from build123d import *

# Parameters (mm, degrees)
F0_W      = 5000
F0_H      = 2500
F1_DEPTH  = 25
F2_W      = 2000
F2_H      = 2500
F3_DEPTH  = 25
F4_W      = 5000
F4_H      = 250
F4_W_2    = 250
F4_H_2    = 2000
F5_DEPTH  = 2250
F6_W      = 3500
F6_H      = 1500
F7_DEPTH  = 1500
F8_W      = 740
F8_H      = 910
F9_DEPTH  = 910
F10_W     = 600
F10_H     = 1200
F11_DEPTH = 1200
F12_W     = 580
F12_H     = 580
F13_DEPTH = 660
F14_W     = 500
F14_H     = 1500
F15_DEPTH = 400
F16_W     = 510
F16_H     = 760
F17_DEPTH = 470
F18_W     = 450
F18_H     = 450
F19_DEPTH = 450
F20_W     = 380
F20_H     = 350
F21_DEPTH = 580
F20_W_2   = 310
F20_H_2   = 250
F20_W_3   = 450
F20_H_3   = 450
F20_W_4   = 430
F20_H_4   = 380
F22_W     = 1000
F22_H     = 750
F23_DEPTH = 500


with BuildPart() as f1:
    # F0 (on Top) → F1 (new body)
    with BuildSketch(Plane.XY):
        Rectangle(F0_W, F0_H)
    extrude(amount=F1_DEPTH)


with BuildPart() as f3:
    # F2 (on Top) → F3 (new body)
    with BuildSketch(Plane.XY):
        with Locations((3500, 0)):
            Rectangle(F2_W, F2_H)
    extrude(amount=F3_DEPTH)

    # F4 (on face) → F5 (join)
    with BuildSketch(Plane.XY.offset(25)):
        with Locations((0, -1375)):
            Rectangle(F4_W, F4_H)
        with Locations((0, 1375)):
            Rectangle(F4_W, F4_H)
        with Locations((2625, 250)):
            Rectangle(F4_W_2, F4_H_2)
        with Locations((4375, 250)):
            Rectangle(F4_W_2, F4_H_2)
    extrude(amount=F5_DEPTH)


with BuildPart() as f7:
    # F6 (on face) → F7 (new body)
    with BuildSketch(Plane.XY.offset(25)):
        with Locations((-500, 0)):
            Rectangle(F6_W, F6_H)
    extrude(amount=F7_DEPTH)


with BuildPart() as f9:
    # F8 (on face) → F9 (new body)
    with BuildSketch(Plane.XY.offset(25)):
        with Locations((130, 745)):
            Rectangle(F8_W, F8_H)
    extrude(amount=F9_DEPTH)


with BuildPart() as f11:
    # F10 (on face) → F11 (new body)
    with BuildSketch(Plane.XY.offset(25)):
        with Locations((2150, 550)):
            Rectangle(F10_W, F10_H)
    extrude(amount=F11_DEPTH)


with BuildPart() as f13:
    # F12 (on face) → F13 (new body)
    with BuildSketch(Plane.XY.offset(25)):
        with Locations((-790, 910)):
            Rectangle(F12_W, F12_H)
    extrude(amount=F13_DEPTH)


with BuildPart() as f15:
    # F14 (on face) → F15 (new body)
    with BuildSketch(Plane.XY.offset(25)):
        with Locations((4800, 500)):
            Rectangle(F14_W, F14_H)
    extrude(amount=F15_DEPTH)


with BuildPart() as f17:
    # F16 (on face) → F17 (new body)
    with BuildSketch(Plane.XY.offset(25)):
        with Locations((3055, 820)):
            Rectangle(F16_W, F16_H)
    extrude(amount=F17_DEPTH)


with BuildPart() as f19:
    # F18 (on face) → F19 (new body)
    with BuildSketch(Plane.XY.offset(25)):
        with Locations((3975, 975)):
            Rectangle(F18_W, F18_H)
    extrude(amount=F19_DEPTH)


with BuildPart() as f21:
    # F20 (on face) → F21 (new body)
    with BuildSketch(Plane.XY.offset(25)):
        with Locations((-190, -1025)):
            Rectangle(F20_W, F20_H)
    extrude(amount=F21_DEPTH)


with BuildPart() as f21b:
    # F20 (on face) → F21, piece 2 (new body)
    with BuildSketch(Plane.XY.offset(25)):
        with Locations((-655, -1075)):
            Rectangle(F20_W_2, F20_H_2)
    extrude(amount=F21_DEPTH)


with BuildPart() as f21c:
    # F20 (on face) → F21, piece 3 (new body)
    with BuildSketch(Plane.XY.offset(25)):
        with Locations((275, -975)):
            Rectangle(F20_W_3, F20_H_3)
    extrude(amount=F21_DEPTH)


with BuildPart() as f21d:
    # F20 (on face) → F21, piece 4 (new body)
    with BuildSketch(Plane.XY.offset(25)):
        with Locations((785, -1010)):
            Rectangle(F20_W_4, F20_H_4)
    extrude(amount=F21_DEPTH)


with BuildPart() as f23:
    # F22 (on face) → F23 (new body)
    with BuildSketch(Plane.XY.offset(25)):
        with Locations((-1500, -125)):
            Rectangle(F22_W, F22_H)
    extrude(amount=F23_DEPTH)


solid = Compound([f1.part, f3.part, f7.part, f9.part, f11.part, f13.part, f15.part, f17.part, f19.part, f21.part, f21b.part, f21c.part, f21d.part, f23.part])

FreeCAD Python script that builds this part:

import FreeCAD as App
import Part
import Sketcher

V = App.Vector
Q = App.Units.Quantity


def add_polygon(sketch, points):
    """Adds a closed chain of lines whose ends are joined by coincident constraints."""
    first, n = sketch.GeometryCount, len(points)
    for a, b in zip(points, points[1:] + points[:1]):
        sketch.addGeometry(Part.LineSegment(App.Vector(*a, 0), App.Vector(*b, 0)), False)
    for i in range(n):
        sketch.addConstraint(Sketcher.Constraint("Coincident", first + i, 2, first + (i + 1) % n, 1))

doc = App.newDocument("Part")
body = doc.addObject("PartDesign::Body", "Body")

sketch1 = body.newObject("Sketcher::SketchObject", "Sketch")
sketch1.AttachmentSupport = (doc.getObject("XY_Plane"), [""])
sketch1.MapMode = "FlatFace"
add_polygon(sketch1, [(-2500, 1250), (-2500, -1250), (2500, -1250), (2500, 1250)])
sketch1.addConstraint(Sketcher.Constraint("Vertical", 0))
sketch1.addConstraint(Sketcher.Constraint("Horizontal", 1))
sketch1.addConstraint(Sketcher.Constraint("Vertical", 2))
sketch1.addConstraint(Sketcher.Constraint("Horizontal", 3))
sketch1.addConstraint(Sketcher.Constraint("Symmetric", 0, 2, 2, 2, -1, 1))
sketch1.addConstraint(Sketcher.Constraint("DistanceX", 1, 1, 1, 2, Q("5000 mm")))
sketch1.addConstraint(Sketcher.Constraint("DistanceY", 0, 2, 0, 1, Q("2500 mm")))
pad1 = body.newObject("PartDesign::Pad", "Pad")
pad1.Profile = sketch1
pad1.Length = 25
body2 = doc.addObject("PartDesign::Body", "Body001")
body2.AllowCompound = True

sketch2 = body2.newObject("Sketcher::SketchObject", "Sketch001")
sketch2.AttachmentSupport = (doc.getObject("XY_Plane001"), [""])
sketch2.MapMode = "FlatFace"
add_polygon(sketch2, [(2500, 1250), (2500, -1250), (4500, -1250), (4500, 1250)])
sketch2.addConstraint(Sketcher.Constraint("Vertical", 0))
sketch2.addConstraint(Sketcher.Constraint("Horizontal", 1))
sketch2.addConstraint(Sketcher.Constraint("Vertical", 2))
sketch2.addConstraint(Sketcher.Constraint("Horizontal", 3))
sketch2.addConstraint(Sketcher.Constraint("DistanceX", 1, 1, 1, 2, Q("2000 mm")))
sketch2.addConstraint(Sketcher.Constraint("DistanceY", 0, 2, 0, 1, Q("2500 mm")))
sketch2.addConstraint(Sketcher.Constraint("DistanceX", -1, 1, 0, 2, Q("2500 mm")))
sketch2.addConstraint(Sketcher.Constraint("DistanceY", 0, 2, -1, 1, Q("1250 mm")))
pad2 = body2.newObject("PartDesign::Pad", "Pad001")
pad2.Profile = sketch2
pad2.Length = 25

sketch3 = body2.newObject("Sketcher::SketchObject", "Sketch002")
sketch3.AttachmentSupport = (doc.getObject("XY_Plane001"), [""])
sketch3.MapMode = "FlatFace"
sketch3.AttachmentOffset = App.Placement(V(0, 0, 25), App.Rotation())
add_polygon(sketch3, [(-2500, -1250), (-2500, -1500), (2500, -1500), (2500, -1250)])
add_polygon(sketch3, [(-2500, 1500), (-2500, 1250), (2500, 1250), (2500, 1500)])
add_polygon(sketch3, [(2500, 1250), (2500, -750), (2750, -750), (2750, 1250)])
add_polygon(sketch3, [(4250, 1250), (4250, -750), (4500, -750), (4500, 1250)])
sketch3.addConstraint(Sketcher.Constraint("Vertical", 0))
sketch3.addConstraint(Sketcher.Constraint("Horizontal", 1))
sketch3.addConstraint(Sketcher.Constraint("Vertical", 2))
sketch3.addConstraint(Sketcher.Constraint("Horizontal", 3))
sketch3.addConstraint(Sketcher.Constraint("Vertical", 4))
sketch3.addConstraint(Sketcher.Constraint("Horizontal", 5))
sketch3.addConstraint(Sketcher.Constraint("Vertical", 6))
sketch3.addConstraint(Sketcher.Constraint("Horizontal", 7))
sketch3.addConstraint(Sketcher.Constraint("Vertical", 8))
sketch3.addConstraint(Sketcher.Constraint("Horizontal", 9))
sketch3.addConstraint(Sketcher.Constraint("Vertical", 10))
sketch3.addConstraint(Sketcher.Constraint("Horizontal", 11))
sketch3.addConstraint(Sketcher.Constraint("Vertical", 12))
sketch3.addConstraint(Sketcher.Constraint("Horizontal", 13))
sketch3.addConstraint(Sketcher.Constraint("Vertical", 14))
sketch3.addConstraint(Sketcher.Constraint("Horizontal", 15))
sketch3.addConstraint(Sketcher.Constraint("Coincident", 11, 2, 5, 2))
sketch3.addConstraint(Sketcher.Constraint("Symmetric", 2, 2, 4, 2, -1, 1))
sketch3.addConstraint(Sketcher.Constraint("Symmetric", 0, 2, 6, 2, -1, 1))
sketch3.addConstraint(Sketcher.Constraint("Horizontal", 9, 2, 12, 2))
sketch3.addConstraint(Sketcher.Constraint("Horizontal", 11, 2, 14, 2))
sketch3.addConstraint(Sketcher.Constraint("Vertical", 3, 2, 4, 2))
sketch3.addConstraint(Sketcher.Constraint("Equal", 11, 13))
sketch3.addConstraint(Sketcher.Constraint("Equal", 15, 0))
sketch3.addConstraint(Sketcher.Constraint("DistanceX", 1, 1, 1, 2, Q("5000 mm")))
sketch3.addConstraint(Sketcher.Constraint("DistanceX", 9, 1, 9, 2, Q("250 mm")))
sketch3.addConstraint(Sketcher.Constraint("DistanceY", 8, 2, 8, 1, Q("2000 mm")))
sketch3.addConstraint(Sketcher.Constraint("DistanceY", 0, 2, -1, 1, Q("1500 mm")))
sketch3.addConstraint(Sketcher.Constraint("DistanceX", -1, 1, 12, 2, Q("4250 mm")))
pad3 = body2.newObject("PartDesign::Pad", "Pad002")
pad3.Profile = sketch3
pad3.Length = 2250
body3 = doc.addObject("PartDesign::Body", "Body002")

sketch4 = body3.newObject("Sketcher::SketchObject", "Sketch003")
sketch4.AttachmentSupport = (doc.getObject("XY_Plane002"), [""])
sketch4.MapMode = "FlatFace"
sketch4.AttachmentOffset = App.Placement(V(0, 0, 25), App.Rotation())
add_polygon(sketch4, [(-2250, 750), (-2250, -750), (1250, -750), (1250, 750)])
sketch4.addConstraint(Sketcher.Constraint("Vertical", 0))
sketch4.addConstraint(Sketcher.Constraint("Horizontal", 1))
sketch4.addConstraint(Sketcher.Constraint("Vertical", 2))
sketch4.addConstraint(Sketcher.Constraint("Horizontal", 3))
sketch4.addConstraint(Sketcher.Constraint("DistanceX", 1, 1, 1, 2, Q("3500 mm")))
sketch4.addConstraint(Sketcher.Constraint("DistanceY", 0, 2, 0, 1, Q("1500 mm")))
sketch4.addConstraint(Sketcher.Constraint("DistanceX", 0, 2, -1, 1, Q("2250 mm")))
sketch4.addConstraint(Sketcher.Constraint("DistanceY", 0, 2, -1, 1, Q("750 mm")))
pad4 = body3.newObject("PartDesign::Pad", "Pad003")
pad4.Profile = sketch4
pad4.Length = 1500
body4 = doc.addObject("PartDesign::Body", "Body003")

sketch5 = body4.newObject("Sketcher::SketchObject", "Sketch004")
sketch5.AttachmentSupport = (doc.getObject("XY_Plane003"), [""])
sketch5.MapMode = "FlatFace"
sketch5.AttachmentOffset = App.Placement(V(0, 0, 25), App.Rotation())
add_polygon(sketch5, [(-240, 1200), (-240, 290), (500, 290), (500, 1200)])
sketch5.addConstraint(Sketcher.Constraint("Vertical", 0))
sketch5.addConstraint(Sketcher.Constraint("Horizontal", 1))
sketch5.addConstraint(Sketcher.Constraint("Vertical", 2))
sketch5.addConstraint(Sketcher.Constraint("Horizontal", 3))
sketch5.addConstraint(Sketcher.Constraint("DistanceX", 1, 1, 1, 2, Q("740 mm")))
sketch5.addConstraint(Sketcher.Constraint("DistanceY", 0, 2, 0, 1, Q("910 mm")))
sketch5.addConstraint(Sketcher.Constraint("DistanceX", 0, 2, -1, 1, Q("240 mm")))
sketch5.addConstraint(Sketcher.Constraint("DistanceY", -1, 1, 0, 2, Q("290 mm")))
pad5 = body4.newObject("PartDesign::Pad", "Pad004")
pad5.Profile = sketch5
pad5.Length = 910
body5 = doc.addObject("PartDesign::Body", "Body004")

sketch6 = body5.newObject("Sketcher::SketchObject", "Sketch005")
sketch6.AttachmentSupport = (doc.getObject("XY_Plane004"), [""])
sketch6.MapMode = "FlatFace"
sketch6.AttachmentOffset = App.Placement(V(0, 0, 25), App.Rotation())
add_polygon(sketch6, [(1850, 1150), (1850, -50), (2450, -50), (2450, 1150)])
sketch6.addConstraint(Sketcher.Constraint("Vertical", 0))
sketch6.addConstraint(Sketcher.Constraint("Horizontal", 1))
sketch6.addConstraint(Sketcher.Constraint("Vertical", 2))
sketch6.addConstraint(Sketcher.Constraint("Horizontal", 3))
sketch6.addConstraint(Sketcher.Constraint("DistanceX", 1, 1, 1, 2, Q("600 mm")))
sketch6.addConstraint(Sketcher.Constraint("DistanceY", 0, 2, 0, 1, Q("1200 mm")))
sketch6.addConstraint(Sketcher.Constraint("DistanceX", -1, 1, 0, 2, Q("1850 mm")))
sketch6.addConstraint(Sketcher.Constraint("DistanceY", 0, 2, -1, 1, Q("50 mm")))
pad6 = body5.newObject("PartDesign::Pad", "Pad005")
pad6.Profile = sketch6
pad6.Length = 1200
body6 = doc.addObject("PartDesign::Body", "Body005")

sketch7 = body6.newObject("Sketcher::SketchObject", "Sketch006")
sketch7.AttachmentSupport = (doc.getObject("XY_Plane005"), [""])
sketch7.MapMode = "FlatFace"
sketch7.AttachmentOffset = App.Placement(V(0, 0, 25), App.Rotation())
add_polygon(sketch7, [(-1080, 1200), (-1080, 620), (-500, 620), (-500, 1200)])
sketch7.addConstraint(Sketcher.Constraint("Vertical", 0))
sketch7.addConstraint(Sketcher.Constraint("Horizontal", 1))
sketch7.addConstraint(Sketcher.Constraint("Vertical", 2))
sketch7.addConstraint(Sketcher.Constraint("Horizontal", 3))
sketch7.addConstraint(Sketcher.Constraint("Equal", 3, 0))
sketch7.addConstraint(Sketcher.Constraint("DistanceX", 1, 1, 1, 2, Q("580 mm")))
sketch7.addConstraint(Sketcher.Constraint("DistanceX", 0, 2, -1, 1, Q("1080 mm")))
sketch7.addConstraint(Sketcher.Constraint("DistanceY", -1, 1, 0, 2, Q("620 mm")))
pad7 = body6.newObject("PartDesign::Pad", "Pad006")
pad7.Profile = sketch7
pad7.Length = 660
body7 = doc.addObject("PartDesign::Body", "Body006")

sketch8 = body7.newObject("Sketcher::SketchObject", "Sketch007")
sketch8.AttachmentSupport = (doc.getObject("XY_Plane006"), [""])
sketch8.MapMode = "FlatFace"
sketch8.AttachmentOffset = App.Placement(V(0, 0, 25), App.Rotation())
add_polygon(sketch8, [(4550, 1250), (4550, -250), (5050, -250), (5050, 1250)])
sketch8.addConstraint(Sketcher.Constraint("Vertical", 0))
sketch8.addConstraint(Sketcher.Constraint("Horizontal", 1))
sketch8.addConstraint(Sketcher.Constraint("Vertical", 2))
sketch8.addConstraint(Sketcher.Constraint("Horizontal", 3))
sketch8.addConstraint(Sketcher.Constraint("DistanceX", 1, 1, 1, 2, Q("500 mm")))
sketch8.addConstraint(Sketcher.Constraint("DistanceY", 0, 2, 0, 1, Q("1500 mm")))
sketch8.addConstraint(Sketcher.Constraint("DistanceX", -1, 1, 0, 2, Q("4550 mm")))
sketch8.addConstraint(Sketcher.Constraint("DistanceY", 0, 2, -1, 1, Q("250 mm")))
pad8 = body7.newObject("PartDesign::Pad", "Pad007")
pad8.Profile = sketch8
pad8.Length = 400
body8 = doc.addObject("PartDesign::Body", "Body007")

sketch9 = body8.newObject("Sketcher::SketchObject", "Sketch008")
sketch9.AttachmentSupport = (doc.getObject("XY_Plane007"), [""])
sketch9.MapMode = "FlatFace"
sketch9.AttachmentOffset = App.Placement(V(0, 0, 25), App.Rotation())
add_polygon(sketch9, [(2800, 1200), (2800, 440), (3310, 440), (3310, 1200)])
sketch9.addConstraint(Sketcher.Constraint("Vertical", 0))
sketch9.addConstraint(Sketcher.Constraint("Horizontal", 1))
sketch9.addConstraint(Sketcher.Constraint("Vertical", 2))
sketch9.addConstraint(Sketcher.Constraint("Horizontal", 3))
sketch9.addConstraint(Sketcher.Constraint("DistanceX", 1, 1, 1, 2, Q("510 mm")))
sketch9.addConstraint(Sketcher.Constraint("DistanceY", 0, 2, 0, 1, Q("760 mm")))
sketch9.addConstraint(Sketcher.Constraint("DistanceX", -1, 1, 0, 2, Q("2800 mm")))
sketch9.addConstraint(Sketcher.Constraint("DistanceY", -1, 1, 0, 2, Q("440 mm")))
pad9 = body8.newObject("PartDesign::Pad", "Pad008")
pad9.Profile = sketch9
pad9.Length = 470
body9 = doc.addObject("PartDesign::Body", "Body008")

sketch10 = body9.newObject("Sketcher::SketchObject", "Sketch009")
sketch10.AttachmentSupport = (doc.getObject("XY_Plane008"), [""])
sketch10.MapMode = "FlatFace"
sketch10.AttachmentOffset = App.Placement(V(0, 0, 25), App.Rotation())
add_polygon(sketch10, [(3750, 1200), (3750, 750), (4200, 750), (4200, 1200)])
sketch10.addConstraint(Sketcher.Constraint("Vertical", 0))
sketch10.addConstraint(Sketcher.Constraint("Horizontal", 1))
sketch10.addConstraint(Sketcher.Constraint("Vertical", 2))
sketch10.addConstraint(Sketcher.Constraint("Horizontal", 3))
sketch10.addConstraint(Sketcher.Constraint("Equal", 3, 0))
sketch10.addConstraint(Sketcher.Constraint("DistanceX", 1, 1, 1, 2, Q("450 mm")))
sketch10.addConstraint(Sketcher.Constraint("DistanceX", -1, 1, 0, 2, Q("3750 mm")))
sketch10.addConstraint(Sketcher.Constraint("DistanceY", -1, 1, 0, 2, Q("750 mm")))
pad10 = body9.newObject("PartDesign::Pad", "Pad009")
pad10.Profile = sketch10
pad10.Length = 450
body10 = doc.addObject("PartDesign::Body", "Body009")

sketch11 = body10.newObject("Sketcher::SketchObject", "Sketch010")
sketch11.AttachmentSupport = (doc.getObject("XY_Plane009"), [""])
sketch11.MapMode = "FlatFace"
sketch11.AttachmentOffset = App.Placement(V(0, 0, 25), App.Rotation())
add_polygon(sketch11, [(-380, -850), (-380, -1200), (0, -1200), (0, -850)])
sketch11.addConstraint(Sketcher.Constraint("Vertical", 0))
sketch11.addConstraint(Sketcher.Constraint("Horizontal", 1))
sketch11.addConstraint(Sketcher.Constraint("Vertical", 2))
sketch11.addConstraint(Sketcher.Constraint("Horizontal", 3))
sketch11.addConstraint(Sketcher.Constraint("PointOnObject", 1, 2, -2))
sketch11.addConstraint(Sketcher.Constraint("DistanceX", 1, 1, 1, 2, Q("380 mm")))
sketch11.addConstraint(Sketcher.Constraint("DistanceY", 0, 2, 0, 1, Q("350 mm")))
sketch11.addConstraint(Sketcher.Constraint("DistanceY", 0, 2, -1, 1, Q("1200 mm")))
pad11 = body10.newObject("PartDesign::Pad", "Pad010")
pad11.Profile = sketch11
pad11.Length = 580
body11 = doc.addObject("PartDesign::Body", "Body010")

sketch12 = body11.newObject("Sketcher::SketchObject", "Sketch011")
sketch12.AttachmentSupport = (doc.getObject("XY_Plane010"), [""])
sketch12.MapMode = "FlatFace"
sketch12.AttachmentOffset = App.Placement(V(0, 0, 25), App.Rotation())
add_polygon(sketch12, [(-810, -950), (-810, -1200), (-500, -1200), (-500, -950)])
sketch12.addConstraint(Sketcher.Constraint("Vertical", 0))
sketch12.addConstraint(Sketcher.Constraint("Horizontal", 1))
sketch12.addConstraint(Sketcher.Constraint("Vertical", 2))
sketch12.addConstraint(Sketcher.Constraint("Horizontal", 3))
sketch12.addConstraint(Sketcher.Constraint("DistanceX", 1, 1, 1, 2, Q("310 mm")))
sketch12.addConstraint(Sketcher.Constraint("DistanceY", 0, 2, 0, 1, Q("250 mm")))
sketch12.addConstraint(Sketcher.Constraint("DistanceX", 0, 2, -1, 1, Q("810 mm")))
sketch12.addConstraint(Sketcher.Constraint("DistanceY", 0, 2, -1, 1, Q("1200 mm")))
pad12 = body11.newObject("PartDesign::Pad", "Pad011")
pad12.Profile = sketch12
pad12.Length = 580
body12 = doc.addObject("PartDesign::Body", "Body011")

sketch13 = body12.newObject("Sketcher::SketchObject", "Sketch012")
sketch13.AttachmentSupport = (doc.getObject("XY_Plane011"), [""])
sketch13.MapMode = "FlatFace"
sketch13.AttachmentOffset = App.Placement(V(0, 0, 25), App.Rotation())
add_polygon(sketch13, [(50, -750), (50, -1200), (500, -1200), (500, -750)])
sketch13.addConstraint(Sketcher.Constraint("Vertical", 0))
sketch13.addConstraint(Sketcher.Constraint("Horizontal", 1))
sketch13.addConstraint(Sketcher.Constraint("Vertical", 2))
sketch13.addConstraint(Sketcher.Constraint("Horizontal", 3))
sketch13.addConstraint(Sketcher.Constraint("Equal", 3, 0))
sketch13.addConstraint(Sketcher.Constraint("DistanceX", 1, 1, 1, 2, Q("450 mm")))
sketch13.addConstraint(Sketcher.Constraint("DistanceX", -1, 1, 0, 2, Q("50 mm")))
sketch13.addConstraint(Sketcher.Constraint("DistanceY", 0, 2, -1, 1, Q("1200 mm")))
pad13 = body12.newObject("PartDesign::Pad", "Pad012")
pad13.Profile = sketch13
pad13.Length = 580
body13 = doc.addObject("PartDesign::Body", "Body012")

sketch14 = body13.newObject("Sketcher::SketchObject", "Sketch013")
sketch14.AttachmentSupport = (doc.getObject("XY_Plane012"), [""])
sketch14.MapMode = "FlatFace"
sketch14.AttachmentOffset = App.Placement(V(0, 0, 25), App.Rotation())
add_polygon(sketch14, [(570, -820), (570, -1200), (1000, -1200), (1000, -820)])
sketch14.addConstraint(Sketcher.Constraint("Vertical", 0))
sketch14.addConstraint(Sketcher.Constraint("Horizontal", 1))
sketch14.addConstraint(Sketcher.Constraint("Vertical", 2))
sketch14.addConstraint(Sketcher.Constraint("Horizontal", 3))
sketch14.addConstraint(Sketcher.Constraint("DistanceX", 1, 1, 1, 2, Q("430 mm")))
sketch14.addConstraint(Sketcher.Constraint("DistanceY", 0, 2, 0, 1, Q("380 mm")))
sketch14.addConstraint(Sketcher.Constraint("DistanceX", -1, 1, 0, 2, Q("570 mm")))
sketch14.addConstraint(Sketcher.Constraint("DistanceY", 0, 2, -1, 1, Q("1200 mm")))
pad14 = body13.newObject("PartDesign::Pad", "Pad013")
pad14.Profile = sketch14
pad14.Length = 580
body14 = doc.addObject("PartDesign::Body", "Body013")

sketch15 = body14.newObject("Sketcher::SketchObject", "Sketch014")
sketch15.AttachmentSupport = (doc.getObject("XY_Plane013"), [""])
sketch15.MapMode = "FlatFace"
sketch15.AttachmentOffset = App.Placement(V(0, 0, 25), App.Rotation())
add_polygon(sketch15, [(-2000, 250), (-2000, -500), (-1000, -500), (-1000, 250)])
sketch15.addConstraint(Sketcher.Constraint("Vertical", 0))
sketch15.addConstraint(Sketcher.Constraint("Horizontal", 1))
sketch15.addConstraint(Sketcher.Constraint("Vertical", 2))
sketch15.addConstraint(Sketcher.Constraint("Horizontal", 3))
sketch15.addConstraint(Sketcher.Constraint("DistanceX", 1, 1, 1, 2, Q("1000 mm")))
sketch15.addConstraint(Sketcher.Constraint("DistanceY", 0, 2, 0, 1, Q("750 mm")))
sketch15.addConstraint(Sketcher.Constraint("DistanceX", 0, 2, -1, 1, Q("2000 mm")))
sketch15.addConstraint(Sketcher.Constraint("DistanceY", 0, 2, -1, 1, Q("500 mm")))
pad15 = body14.newObject("PartDesign::Pad", "Pad014")
pad15.Profile = sketch15
pad15.Length = 500

doc.recompute()
